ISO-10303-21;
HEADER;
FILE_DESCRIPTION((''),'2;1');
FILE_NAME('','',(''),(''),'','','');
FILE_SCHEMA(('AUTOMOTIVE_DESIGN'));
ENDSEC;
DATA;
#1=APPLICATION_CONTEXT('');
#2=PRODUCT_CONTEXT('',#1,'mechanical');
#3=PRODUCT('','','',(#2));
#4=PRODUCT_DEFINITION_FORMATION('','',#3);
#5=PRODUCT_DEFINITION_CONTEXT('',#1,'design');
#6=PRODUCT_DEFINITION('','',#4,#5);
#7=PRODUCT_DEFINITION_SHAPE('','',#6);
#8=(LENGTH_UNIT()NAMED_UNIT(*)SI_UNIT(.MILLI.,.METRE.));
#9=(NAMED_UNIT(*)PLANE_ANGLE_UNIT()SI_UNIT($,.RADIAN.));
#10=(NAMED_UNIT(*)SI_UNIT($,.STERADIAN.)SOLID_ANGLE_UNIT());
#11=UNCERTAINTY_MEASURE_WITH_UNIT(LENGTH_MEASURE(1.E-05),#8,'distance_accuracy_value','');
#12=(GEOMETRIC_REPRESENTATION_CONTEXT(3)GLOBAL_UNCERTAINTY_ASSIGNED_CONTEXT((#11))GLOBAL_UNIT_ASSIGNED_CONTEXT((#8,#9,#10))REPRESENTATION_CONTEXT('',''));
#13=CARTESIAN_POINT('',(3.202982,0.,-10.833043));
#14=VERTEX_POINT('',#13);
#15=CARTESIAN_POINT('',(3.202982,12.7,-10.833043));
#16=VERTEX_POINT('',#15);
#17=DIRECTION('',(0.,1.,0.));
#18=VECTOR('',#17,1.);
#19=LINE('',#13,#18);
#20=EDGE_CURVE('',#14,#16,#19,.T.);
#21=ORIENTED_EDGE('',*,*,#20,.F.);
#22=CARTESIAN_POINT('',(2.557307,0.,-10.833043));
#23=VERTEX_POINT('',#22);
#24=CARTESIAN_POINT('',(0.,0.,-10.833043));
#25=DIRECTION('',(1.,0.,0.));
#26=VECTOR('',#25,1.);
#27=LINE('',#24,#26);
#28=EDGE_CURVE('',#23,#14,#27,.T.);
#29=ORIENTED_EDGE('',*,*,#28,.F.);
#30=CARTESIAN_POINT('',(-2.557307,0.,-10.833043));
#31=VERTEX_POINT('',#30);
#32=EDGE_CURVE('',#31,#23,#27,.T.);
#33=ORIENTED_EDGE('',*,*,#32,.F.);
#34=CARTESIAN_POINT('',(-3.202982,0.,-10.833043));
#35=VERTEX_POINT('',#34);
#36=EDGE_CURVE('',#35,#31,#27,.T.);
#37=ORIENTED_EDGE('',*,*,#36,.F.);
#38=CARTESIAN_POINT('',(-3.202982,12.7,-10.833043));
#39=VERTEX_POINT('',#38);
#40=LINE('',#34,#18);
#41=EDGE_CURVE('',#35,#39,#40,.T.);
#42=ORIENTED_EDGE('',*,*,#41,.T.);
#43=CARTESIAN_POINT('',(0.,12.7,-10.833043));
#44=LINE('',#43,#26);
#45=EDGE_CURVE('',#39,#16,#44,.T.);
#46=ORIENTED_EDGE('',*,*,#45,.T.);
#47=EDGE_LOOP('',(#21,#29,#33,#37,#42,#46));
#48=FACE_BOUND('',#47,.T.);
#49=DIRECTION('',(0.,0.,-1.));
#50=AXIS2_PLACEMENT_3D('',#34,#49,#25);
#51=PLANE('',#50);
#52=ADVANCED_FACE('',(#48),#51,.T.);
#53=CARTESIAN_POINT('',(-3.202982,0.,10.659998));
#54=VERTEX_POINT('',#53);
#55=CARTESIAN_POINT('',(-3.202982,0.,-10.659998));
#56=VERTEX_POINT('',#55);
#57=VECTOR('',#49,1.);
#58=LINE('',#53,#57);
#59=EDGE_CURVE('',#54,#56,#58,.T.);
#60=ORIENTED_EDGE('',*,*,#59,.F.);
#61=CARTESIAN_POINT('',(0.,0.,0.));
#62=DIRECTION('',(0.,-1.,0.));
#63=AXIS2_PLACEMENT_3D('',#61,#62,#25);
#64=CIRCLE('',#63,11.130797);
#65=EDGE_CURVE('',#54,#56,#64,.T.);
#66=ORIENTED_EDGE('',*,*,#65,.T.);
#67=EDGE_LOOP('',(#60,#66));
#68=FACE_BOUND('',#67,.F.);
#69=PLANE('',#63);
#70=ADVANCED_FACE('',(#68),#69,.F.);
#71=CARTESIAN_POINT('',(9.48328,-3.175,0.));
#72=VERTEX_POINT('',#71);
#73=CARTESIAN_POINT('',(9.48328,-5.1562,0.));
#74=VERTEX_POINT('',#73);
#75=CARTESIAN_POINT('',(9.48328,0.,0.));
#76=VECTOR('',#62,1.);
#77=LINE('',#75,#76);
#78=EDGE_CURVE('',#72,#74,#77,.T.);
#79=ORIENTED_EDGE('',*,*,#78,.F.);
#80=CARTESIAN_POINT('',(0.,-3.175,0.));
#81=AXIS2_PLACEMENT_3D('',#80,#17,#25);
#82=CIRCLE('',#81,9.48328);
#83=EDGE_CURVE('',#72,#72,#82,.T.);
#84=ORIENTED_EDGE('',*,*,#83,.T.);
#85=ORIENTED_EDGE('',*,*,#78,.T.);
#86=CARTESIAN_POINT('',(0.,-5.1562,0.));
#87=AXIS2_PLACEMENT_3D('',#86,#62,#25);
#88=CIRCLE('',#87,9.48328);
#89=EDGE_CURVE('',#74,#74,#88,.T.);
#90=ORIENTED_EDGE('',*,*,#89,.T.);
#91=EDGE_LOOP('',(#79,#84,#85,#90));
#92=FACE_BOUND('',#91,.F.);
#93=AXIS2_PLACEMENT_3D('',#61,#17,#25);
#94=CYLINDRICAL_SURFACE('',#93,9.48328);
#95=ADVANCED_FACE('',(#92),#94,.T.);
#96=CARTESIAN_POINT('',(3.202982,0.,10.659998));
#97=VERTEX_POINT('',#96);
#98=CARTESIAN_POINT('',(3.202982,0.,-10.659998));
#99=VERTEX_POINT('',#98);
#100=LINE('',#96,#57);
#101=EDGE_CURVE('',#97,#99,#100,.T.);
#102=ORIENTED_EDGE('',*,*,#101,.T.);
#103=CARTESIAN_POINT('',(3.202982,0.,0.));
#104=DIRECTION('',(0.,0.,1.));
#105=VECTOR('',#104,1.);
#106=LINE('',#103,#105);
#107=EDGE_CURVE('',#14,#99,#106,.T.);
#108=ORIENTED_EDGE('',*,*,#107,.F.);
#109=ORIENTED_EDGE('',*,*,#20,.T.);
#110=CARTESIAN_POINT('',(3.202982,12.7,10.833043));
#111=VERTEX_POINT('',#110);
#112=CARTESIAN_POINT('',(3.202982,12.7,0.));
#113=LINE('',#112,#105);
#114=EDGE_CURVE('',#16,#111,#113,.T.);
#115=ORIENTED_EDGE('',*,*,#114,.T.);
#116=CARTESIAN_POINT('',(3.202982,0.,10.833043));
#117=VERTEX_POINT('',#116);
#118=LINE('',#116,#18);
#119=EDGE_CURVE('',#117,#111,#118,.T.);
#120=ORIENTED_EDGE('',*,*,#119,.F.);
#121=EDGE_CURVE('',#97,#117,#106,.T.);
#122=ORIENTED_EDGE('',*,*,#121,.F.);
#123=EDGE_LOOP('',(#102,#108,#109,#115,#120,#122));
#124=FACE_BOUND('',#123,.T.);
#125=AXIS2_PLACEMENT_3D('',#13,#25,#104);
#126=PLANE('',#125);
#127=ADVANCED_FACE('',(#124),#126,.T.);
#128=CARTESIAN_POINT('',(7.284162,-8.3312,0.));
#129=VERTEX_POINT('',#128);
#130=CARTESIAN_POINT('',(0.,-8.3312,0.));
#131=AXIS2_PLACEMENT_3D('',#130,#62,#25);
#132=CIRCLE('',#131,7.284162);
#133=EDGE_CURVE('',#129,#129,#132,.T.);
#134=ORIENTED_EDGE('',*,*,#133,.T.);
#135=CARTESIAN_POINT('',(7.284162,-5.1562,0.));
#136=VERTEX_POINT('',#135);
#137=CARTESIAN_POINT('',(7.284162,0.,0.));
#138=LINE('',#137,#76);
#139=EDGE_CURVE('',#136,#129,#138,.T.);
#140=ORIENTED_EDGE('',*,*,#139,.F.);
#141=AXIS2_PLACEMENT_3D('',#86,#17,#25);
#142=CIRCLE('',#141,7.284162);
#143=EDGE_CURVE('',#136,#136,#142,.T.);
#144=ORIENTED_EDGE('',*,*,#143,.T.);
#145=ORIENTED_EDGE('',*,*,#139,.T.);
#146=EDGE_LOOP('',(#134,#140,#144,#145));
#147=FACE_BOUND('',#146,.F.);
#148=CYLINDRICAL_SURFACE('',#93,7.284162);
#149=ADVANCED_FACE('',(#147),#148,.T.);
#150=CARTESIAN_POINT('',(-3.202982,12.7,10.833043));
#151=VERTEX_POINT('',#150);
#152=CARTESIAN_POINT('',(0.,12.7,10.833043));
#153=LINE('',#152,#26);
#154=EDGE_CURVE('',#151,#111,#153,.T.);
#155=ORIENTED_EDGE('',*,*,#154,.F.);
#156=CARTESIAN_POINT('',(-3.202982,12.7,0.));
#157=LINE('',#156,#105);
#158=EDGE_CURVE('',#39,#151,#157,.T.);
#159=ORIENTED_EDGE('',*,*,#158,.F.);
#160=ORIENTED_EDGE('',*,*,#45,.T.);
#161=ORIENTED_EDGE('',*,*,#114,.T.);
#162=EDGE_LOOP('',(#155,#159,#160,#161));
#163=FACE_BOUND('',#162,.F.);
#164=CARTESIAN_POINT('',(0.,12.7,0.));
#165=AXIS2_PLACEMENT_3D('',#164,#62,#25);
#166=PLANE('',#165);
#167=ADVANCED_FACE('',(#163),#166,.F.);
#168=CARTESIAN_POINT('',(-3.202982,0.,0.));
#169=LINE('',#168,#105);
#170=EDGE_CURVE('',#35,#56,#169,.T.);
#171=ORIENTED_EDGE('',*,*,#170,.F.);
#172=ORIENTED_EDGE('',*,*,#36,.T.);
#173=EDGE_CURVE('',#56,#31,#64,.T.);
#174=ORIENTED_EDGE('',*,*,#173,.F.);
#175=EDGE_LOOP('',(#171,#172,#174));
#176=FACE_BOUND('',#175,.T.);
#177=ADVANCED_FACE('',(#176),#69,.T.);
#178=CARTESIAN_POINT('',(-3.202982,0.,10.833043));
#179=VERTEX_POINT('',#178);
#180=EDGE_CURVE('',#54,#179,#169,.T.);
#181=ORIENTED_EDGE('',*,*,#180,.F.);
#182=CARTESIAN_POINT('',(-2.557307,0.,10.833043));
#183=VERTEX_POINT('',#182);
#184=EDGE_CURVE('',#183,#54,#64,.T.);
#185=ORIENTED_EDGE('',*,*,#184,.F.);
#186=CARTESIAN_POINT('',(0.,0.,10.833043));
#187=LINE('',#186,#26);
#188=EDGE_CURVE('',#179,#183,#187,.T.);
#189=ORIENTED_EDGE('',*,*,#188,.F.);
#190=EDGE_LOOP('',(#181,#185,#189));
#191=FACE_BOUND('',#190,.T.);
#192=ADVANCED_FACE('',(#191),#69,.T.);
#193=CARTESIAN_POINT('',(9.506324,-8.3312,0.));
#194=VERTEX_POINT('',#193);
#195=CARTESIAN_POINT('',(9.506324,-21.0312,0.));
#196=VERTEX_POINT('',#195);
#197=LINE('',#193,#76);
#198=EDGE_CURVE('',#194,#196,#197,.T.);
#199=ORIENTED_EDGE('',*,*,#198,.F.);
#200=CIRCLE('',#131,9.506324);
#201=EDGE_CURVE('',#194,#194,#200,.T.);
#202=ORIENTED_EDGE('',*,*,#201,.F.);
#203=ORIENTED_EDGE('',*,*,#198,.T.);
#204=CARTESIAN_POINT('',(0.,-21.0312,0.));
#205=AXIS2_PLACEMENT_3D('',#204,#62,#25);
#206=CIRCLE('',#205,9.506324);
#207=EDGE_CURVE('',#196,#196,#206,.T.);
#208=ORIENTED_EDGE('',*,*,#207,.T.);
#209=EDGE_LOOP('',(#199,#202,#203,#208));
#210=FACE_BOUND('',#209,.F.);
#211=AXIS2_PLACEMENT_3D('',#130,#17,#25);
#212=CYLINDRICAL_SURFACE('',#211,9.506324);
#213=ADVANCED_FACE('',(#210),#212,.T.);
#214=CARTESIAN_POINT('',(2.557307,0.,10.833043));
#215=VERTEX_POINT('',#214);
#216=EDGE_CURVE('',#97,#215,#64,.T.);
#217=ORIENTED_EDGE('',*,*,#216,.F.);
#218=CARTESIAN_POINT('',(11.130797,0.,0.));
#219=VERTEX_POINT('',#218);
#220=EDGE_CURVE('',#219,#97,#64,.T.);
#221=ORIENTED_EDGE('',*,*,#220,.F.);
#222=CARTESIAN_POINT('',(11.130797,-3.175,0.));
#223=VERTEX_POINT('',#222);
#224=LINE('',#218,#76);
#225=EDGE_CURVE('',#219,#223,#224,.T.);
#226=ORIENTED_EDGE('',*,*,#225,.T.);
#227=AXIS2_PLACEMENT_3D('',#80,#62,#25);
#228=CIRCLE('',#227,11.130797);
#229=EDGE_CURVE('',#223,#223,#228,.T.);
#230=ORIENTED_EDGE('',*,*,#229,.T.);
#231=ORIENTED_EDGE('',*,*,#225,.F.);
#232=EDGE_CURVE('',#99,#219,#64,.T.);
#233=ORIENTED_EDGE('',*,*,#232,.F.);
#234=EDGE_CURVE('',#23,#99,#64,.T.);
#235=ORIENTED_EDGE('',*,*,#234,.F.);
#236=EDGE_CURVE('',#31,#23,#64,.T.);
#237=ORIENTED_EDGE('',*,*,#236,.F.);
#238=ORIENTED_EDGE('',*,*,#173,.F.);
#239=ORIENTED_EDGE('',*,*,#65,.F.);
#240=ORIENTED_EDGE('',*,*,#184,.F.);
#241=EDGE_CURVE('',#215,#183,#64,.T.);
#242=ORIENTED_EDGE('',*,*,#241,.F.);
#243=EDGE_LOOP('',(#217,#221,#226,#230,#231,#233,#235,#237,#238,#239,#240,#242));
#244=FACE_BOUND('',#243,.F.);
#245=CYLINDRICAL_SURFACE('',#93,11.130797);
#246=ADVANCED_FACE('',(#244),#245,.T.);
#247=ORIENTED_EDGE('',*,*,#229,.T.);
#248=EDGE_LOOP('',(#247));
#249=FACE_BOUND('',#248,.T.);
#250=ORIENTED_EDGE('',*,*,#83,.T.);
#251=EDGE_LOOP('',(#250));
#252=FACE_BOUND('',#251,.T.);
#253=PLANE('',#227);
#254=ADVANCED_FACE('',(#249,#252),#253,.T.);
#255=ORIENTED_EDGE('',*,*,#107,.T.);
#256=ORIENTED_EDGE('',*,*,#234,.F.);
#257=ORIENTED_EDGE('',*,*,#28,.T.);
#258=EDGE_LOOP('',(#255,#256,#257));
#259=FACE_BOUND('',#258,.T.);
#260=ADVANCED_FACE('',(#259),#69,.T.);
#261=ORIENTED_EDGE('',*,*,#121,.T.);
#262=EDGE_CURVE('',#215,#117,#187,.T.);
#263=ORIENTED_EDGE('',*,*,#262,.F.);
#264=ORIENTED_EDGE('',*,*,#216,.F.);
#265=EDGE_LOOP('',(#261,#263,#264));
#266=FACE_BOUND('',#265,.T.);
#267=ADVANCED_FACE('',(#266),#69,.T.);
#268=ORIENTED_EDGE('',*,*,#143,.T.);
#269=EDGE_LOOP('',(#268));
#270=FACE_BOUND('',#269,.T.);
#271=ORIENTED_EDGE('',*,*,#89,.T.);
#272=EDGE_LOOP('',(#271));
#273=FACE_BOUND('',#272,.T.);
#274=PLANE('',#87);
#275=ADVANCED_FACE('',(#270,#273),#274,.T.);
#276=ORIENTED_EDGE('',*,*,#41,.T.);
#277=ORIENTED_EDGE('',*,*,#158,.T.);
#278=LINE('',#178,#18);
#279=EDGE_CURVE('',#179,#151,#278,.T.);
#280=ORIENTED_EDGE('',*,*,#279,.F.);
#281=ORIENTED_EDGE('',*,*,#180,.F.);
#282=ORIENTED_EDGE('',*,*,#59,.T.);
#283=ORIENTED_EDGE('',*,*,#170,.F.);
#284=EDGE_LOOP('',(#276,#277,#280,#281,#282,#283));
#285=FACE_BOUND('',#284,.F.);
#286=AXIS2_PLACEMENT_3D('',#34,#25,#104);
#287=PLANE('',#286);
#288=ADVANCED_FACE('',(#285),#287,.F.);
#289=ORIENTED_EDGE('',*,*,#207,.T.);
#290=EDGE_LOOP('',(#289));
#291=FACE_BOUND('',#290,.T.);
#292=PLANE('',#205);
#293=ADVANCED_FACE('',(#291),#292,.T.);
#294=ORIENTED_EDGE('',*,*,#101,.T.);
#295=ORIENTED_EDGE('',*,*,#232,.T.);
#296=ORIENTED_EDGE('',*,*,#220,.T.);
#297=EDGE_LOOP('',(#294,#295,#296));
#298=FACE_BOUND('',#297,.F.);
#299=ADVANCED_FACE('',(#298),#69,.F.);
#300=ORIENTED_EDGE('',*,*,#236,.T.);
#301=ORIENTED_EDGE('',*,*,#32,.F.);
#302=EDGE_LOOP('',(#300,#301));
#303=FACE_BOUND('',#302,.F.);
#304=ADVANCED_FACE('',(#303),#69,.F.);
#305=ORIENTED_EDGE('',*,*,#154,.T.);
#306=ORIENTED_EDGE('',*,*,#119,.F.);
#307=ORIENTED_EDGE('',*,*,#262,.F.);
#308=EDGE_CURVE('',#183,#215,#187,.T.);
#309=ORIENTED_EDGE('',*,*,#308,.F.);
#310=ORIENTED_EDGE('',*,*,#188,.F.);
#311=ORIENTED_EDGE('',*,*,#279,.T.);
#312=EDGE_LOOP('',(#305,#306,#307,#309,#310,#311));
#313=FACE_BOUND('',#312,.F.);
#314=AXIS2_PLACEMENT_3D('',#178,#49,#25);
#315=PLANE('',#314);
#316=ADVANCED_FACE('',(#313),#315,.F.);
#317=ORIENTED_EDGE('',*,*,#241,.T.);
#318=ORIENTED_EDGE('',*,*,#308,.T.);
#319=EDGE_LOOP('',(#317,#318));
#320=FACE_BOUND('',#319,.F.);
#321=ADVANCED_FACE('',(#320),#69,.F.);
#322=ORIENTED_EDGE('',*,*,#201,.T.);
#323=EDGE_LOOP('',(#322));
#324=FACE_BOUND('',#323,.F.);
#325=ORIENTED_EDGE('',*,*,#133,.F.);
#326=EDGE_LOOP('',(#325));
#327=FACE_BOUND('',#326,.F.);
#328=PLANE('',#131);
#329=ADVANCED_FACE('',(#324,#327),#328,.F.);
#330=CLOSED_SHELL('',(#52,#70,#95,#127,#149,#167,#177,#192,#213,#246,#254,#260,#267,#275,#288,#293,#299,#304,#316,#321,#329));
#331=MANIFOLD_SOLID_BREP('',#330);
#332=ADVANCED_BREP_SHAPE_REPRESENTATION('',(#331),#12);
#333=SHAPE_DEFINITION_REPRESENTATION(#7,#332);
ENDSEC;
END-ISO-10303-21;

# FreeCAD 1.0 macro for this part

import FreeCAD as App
import Part
import Sketcher
Q = App.Units.Quantity

doc = App.newDocument("Part")
body = doc.addObject("PartDesign::Body", "Body")

sketch1 = body.newObject("Sketcher::SketchObject", "Sketch")
sketch1.AttachmentSupport = (doc.getObject("XZ_Plane"), [""])
sketch1.MapMode = "FlatFace"
sketch1.addGeometry(Part.Circle(App.Vector(0, 0, 0), App.Vector(0, 0, 1), 11), False)
sketch1.addConstraint([
    Sketcher.Constraint("Coincident", 0, 3, -1, 1),
    Sketcher.Constraint("Diameter", 0, Q("22.261594 mm")),
])
pad1 = body.newObject("PartDesign::Pad", "Pad")
pad1.Profile = sketch1
pad1.Length = Q("0.125 in")

sketch2 = body.newObject("Sketcher::SketchObject", "Sketch001")
sketch2.AttachmentSupport = (doc.getObject("XZ_Plane"), [""])
sketch2.MapMode = "FlatFace"
sketch2.addGeometry([
    Part.LineSegment(App.Vector(-3, 11, 0), App.Vector(-3, -11, 0)),
    Part.LineSegment(App.Vector(-3, -11, 0), App.Vector(3, -11, 0)),
    Part.LineSegment(App.Vector(3, -11, 0), App.Vector(3, 11, 0)),
    Part.LineSegment(App.Vector(3, 11, 0), App.Vector(-3, 11, 0)),
], False)
sketch2.addConstraint([
    Sketcher.Constraint("Coincident", 0, 2, 1, 1),
    Sketcher.Constraint("Coincident", 1, 2, 2, 1),
    Sketcher.Constraint("Coincident", 2, 2, 3, 1),
    Sketcher.Constraint("Coincident", 3, 2, 0, 1),
    Sketcher.Constraint("Vertical", 0),
    Sketcher.Constraint("Horizontal", 1),
    Sketcher.Constraint("Vertical", 2),
    Sketcher.Constraint("Horizontal", 3),
    Sketcher.Constraint("Symmetric", 0, 2, 2, 2, -1, 1),
    Sketcher.Constraint("DistanceX", 1, 1, 1, 2, Q("6.405964 mm")),
    Sketcher.Constraint("DistanceY", 0, 2, 0, 1, Q("21.666086 mm")),
])
pad2 = body.newObject("PartDesign::Pad", "Pad001")
pad2.Profile = sketch2
pad2.Length = Q("0.5 in")
pad2.Reversed = True

sketch3 = body.newObject("Sketcher::SketchObject", "Sketch002")
sketch3.AttachmentSupport = (doc.getObject("XZ_Plane"), [""])
sketch3.MapMode = "FlatFace"
sketch3.addGeometry(Part.Circle(App.Vector(0, 0, 0), App.Vector(0, 0, 1), 9), False)
sketch3.addConstraint([
    Sketcher.Constraint("Coincident", 0, 3, -1, 1),
    Sketcher.Constraint("Diameter", 0, Q("18.96656 mm")),
])
pad3 = body.newObject("PartDesign::Pad", "Pad002")
pad3.Profile = sketch3
pad3.Length = Q("0.203 in")

sketch4 = body.newObject("Sketcher::SketchObject", "Sketch003")
sketch4.AttachmentSupport = (doc.getObject("XZ_Plane"), [""])
sketch4.MapMode = "FlatFace"
sketch4.addGeometry(Part.Circle(App.Vector(0, 0, 0), App.Vector(0, 0, 1), 7), False)
sketch4.addConstraint([
    Sketcher.Constraint("Coincident", 0, 3, -1, 1),
    Sketcher.Constraint("Diameter", 0, Q("14.568324 mm")),
])
pad4 = body.newObject("PartDesign::Pad", "Pad003")
pad4.Profile = sketch4
pad4.Length = Q("0.328 in")

sketch5 = body.newObject("Sketcher::SketchObject", "Sketch004")
sketch5.AttachmentSupport = (doc.getObject("XZ_Plane"), [""])
sketch5.MapMode = "FlatFace"
sketch5.AttachmentOffset = App.Placement(App.Vector(0, 0, 0.328 * 25.4), App.Rotation())
sketch5.addGeometry(Part.Circle(App.Vector(0, 0, 0), App.Vector(0, 0, 1), 10), False)
sketch5.addConstraint([
    Sketcher.Constraint("Coincident", 0, 3, -1, 1),
    Sketcher.Constraint("Diameter", 0, Q("19.012648 mm")),
])
pad5 = body.newObject("PartDesign::Pad", "Pad004")
pad5.Profile = sketch5
pad5.Length = Q("0.5 in")

doc.recompute()
